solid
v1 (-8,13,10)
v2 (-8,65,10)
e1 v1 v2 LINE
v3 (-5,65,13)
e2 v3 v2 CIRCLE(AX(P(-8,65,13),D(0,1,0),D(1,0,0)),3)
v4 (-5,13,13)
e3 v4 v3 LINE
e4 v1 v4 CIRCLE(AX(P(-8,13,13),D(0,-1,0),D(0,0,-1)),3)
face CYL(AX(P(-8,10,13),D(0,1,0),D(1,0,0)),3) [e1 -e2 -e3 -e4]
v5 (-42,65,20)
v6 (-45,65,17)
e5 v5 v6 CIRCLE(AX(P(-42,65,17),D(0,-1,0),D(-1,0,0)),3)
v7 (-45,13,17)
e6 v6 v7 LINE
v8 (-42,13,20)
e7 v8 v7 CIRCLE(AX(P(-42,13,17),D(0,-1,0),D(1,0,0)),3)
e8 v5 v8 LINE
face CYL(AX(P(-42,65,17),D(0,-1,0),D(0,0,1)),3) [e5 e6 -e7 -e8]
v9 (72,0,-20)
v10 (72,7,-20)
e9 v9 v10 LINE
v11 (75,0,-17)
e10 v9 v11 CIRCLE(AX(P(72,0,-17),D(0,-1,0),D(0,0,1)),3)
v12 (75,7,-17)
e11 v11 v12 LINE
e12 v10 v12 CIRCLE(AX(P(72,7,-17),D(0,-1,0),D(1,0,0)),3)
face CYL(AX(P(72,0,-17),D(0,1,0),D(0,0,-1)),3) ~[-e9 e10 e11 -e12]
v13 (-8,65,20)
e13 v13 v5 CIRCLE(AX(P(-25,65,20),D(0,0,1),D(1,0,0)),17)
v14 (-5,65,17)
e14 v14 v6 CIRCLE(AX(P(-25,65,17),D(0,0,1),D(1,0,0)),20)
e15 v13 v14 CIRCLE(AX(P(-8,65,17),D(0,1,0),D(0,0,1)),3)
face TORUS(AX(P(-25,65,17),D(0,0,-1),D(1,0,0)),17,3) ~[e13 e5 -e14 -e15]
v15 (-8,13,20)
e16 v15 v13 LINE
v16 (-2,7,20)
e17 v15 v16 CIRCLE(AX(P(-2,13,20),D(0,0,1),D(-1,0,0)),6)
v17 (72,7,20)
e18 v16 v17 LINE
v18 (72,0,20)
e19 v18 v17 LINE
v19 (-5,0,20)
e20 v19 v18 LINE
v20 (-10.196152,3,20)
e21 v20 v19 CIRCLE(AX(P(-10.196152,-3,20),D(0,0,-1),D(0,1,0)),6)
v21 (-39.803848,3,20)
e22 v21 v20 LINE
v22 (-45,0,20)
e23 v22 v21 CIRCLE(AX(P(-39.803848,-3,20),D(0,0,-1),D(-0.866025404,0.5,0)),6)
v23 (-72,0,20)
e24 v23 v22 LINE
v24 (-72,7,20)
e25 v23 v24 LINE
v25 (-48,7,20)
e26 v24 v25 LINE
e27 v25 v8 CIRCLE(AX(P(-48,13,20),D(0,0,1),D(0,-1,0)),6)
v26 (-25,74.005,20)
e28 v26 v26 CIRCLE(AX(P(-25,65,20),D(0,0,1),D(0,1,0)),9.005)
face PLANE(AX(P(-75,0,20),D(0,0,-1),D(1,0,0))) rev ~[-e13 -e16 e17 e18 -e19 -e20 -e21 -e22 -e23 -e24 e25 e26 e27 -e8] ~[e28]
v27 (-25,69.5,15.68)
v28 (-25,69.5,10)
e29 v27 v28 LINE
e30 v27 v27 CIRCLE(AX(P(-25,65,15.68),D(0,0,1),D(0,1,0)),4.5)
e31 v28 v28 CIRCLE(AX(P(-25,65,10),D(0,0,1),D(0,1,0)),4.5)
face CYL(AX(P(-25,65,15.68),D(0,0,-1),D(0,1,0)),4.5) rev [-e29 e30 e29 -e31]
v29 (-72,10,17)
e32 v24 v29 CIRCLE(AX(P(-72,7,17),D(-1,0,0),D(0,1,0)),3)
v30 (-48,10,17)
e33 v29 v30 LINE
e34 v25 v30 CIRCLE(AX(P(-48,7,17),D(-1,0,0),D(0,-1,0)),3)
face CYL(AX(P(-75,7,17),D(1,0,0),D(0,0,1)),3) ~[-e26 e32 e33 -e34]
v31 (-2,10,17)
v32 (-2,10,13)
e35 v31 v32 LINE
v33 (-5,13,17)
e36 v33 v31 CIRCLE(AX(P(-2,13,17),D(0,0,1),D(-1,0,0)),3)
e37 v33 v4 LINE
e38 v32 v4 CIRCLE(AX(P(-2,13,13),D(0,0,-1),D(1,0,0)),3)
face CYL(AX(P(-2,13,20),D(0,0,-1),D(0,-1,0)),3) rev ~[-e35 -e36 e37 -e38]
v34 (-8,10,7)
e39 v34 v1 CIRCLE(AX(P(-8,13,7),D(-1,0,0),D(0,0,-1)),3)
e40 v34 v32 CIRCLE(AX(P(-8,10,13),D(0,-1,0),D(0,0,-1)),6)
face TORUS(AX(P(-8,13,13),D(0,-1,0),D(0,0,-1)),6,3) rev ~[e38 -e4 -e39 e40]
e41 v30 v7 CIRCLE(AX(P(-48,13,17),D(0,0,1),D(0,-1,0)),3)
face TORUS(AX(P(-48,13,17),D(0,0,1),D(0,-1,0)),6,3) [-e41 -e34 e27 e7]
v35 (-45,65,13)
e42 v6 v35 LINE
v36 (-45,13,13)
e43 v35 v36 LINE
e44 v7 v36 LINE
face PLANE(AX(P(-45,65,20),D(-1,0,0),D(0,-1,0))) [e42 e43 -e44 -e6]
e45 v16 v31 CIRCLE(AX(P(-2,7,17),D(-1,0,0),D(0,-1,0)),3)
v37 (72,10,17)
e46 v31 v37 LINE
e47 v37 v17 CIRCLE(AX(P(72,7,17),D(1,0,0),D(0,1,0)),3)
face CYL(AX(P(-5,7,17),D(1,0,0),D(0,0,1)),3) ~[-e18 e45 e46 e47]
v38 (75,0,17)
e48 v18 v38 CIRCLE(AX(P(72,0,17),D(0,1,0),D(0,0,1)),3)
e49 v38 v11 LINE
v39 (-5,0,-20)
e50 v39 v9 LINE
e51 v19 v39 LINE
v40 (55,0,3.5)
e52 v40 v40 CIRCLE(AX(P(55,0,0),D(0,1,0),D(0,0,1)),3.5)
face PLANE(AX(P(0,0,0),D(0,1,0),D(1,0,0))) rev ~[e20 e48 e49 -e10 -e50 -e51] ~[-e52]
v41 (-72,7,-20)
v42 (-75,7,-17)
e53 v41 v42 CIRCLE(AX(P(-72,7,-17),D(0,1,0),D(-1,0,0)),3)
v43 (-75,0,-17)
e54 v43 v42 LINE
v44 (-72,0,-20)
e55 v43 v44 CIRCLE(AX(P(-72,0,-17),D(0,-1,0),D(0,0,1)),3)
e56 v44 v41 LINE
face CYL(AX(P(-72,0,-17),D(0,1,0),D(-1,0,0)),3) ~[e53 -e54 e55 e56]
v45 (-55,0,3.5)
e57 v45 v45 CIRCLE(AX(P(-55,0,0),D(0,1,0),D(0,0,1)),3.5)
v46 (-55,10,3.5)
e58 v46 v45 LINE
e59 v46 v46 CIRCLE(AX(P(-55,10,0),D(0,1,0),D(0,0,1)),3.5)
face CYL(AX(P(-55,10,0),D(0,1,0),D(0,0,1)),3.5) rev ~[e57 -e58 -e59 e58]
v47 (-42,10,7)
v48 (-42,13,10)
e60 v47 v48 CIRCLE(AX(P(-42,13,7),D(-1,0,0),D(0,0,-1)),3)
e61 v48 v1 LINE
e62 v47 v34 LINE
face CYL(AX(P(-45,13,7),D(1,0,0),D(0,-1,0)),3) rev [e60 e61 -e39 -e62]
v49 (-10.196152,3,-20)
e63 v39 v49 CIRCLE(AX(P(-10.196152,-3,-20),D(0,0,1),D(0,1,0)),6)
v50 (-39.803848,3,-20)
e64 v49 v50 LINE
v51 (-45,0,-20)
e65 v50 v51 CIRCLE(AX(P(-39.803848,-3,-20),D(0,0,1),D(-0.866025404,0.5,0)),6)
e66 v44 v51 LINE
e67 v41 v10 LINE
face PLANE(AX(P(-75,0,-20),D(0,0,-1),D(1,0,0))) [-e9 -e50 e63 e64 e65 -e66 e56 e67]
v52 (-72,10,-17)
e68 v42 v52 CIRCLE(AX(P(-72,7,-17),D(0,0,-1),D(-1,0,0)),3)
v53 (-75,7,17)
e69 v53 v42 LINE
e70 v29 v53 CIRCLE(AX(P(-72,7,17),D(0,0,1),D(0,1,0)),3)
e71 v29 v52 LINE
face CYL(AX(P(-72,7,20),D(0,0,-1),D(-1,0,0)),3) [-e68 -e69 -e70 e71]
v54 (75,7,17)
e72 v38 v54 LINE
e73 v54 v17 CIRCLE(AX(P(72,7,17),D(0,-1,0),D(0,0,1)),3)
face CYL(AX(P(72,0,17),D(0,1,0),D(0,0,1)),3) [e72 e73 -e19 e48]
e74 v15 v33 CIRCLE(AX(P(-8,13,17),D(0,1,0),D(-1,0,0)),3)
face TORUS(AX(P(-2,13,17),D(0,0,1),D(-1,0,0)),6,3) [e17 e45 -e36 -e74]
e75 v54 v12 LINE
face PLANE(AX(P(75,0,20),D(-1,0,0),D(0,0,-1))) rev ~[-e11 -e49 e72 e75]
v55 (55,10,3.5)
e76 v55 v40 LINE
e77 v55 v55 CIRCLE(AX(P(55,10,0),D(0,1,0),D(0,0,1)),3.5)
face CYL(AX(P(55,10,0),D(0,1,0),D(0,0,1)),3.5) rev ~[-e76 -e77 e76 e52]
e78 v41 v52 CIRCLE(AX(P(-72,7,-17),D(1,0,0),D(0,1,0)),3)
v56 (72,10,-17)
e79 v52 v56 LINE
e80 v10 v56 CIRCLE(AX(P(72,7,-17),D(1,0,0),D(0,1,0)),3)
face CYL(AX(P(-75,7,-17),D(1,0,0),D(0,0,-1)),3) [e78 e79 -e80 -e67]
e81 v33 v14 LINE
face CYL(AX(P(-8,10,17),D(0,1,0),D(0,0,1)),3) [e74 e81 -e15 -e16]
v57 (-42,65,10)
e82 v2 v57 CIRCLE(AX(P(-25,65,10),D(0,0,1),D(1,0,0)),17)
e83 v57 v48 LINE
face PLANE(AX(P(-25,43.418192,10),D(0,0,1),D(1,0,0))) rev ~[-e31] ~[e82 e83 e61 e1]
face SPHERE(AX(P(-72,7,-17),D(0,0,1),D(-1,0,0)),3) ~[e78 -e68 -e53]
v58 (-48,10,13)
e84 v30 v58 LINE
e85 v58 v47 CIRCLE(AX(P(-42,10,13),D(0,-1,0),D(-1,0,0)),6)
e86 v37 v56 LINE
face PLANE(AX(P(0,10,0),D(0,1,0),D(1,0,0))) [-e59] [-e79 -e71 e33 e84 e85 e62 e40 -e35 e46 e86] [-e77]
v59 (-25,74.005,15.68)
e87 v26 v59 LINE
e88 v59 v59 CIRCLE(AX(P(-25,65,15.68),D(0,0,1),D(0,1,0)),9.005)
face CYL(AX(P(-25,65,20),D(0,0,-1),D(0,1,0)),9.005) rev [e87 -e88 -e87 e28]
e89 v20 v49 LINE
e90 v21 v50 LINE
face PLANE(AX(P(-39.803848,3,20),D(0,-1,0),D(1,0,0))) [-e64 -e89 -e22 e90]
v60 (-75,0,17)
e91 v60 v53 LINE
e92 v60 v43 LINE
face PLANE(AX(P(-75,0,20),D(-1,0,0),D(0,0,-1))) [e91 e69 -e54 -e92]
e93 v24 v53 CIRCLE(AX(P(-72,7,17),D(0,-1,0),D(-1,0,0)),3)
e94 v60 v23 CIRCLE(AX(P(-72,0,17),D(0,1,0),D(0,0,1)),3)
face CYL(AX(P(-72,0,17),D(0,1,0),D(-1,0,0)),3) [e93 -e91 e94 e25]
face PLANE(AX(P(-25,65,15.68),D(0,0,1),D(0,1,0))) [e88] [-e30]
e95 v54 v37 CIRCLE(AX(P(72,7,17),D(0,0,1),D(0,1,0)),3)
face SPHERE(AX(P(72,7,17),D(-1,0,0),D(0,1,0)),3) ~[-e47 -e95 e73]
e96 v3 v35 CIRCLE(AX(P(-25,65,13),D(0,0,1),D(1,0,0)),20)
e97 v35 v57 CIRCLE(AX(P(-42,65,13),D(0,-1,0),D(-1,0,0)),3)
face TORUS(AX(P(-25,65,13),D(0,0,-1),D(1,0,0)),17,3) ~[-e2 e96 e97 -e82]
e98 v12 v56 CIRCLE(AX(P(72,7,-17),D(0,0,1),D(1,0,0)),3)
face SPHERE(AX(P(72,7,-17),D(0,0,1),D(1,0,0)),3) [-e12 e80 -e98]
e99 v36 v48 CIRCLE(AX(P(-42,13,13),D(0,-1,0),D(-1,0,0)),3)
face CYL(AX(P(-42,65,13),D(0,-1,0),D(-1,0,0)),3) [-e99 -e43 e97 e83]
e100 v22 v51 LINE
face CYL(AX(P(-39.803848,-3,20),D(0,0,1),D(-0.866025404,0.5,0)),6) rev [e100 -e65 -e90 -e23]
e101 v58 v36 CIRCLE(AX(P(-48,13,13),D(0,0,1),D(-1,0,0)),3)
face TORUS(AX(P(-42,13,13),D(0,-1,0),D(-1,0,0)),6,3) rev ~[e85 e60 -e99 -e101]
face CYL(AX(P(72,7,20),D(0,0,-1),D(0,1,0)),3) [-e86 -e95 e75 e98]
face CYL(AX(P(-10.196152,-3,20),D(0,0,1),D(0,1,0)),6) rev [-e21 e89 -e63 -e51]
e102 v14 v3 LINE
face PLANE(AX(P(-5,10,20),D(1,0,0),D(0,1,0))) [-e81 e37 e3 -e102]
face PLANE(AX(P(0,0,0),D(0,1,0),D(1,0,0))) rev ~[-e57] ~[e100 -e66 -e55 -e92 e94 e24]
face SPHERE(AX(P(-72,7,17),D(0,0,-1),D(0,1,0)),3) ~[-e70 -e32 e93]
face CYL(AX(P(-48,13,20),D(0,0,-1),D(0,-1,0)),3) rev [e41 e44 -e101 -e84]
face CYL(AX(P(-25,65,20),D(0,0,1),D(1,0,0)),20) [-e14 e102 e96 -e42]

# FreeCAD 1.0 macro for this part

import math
import FreeCAD as App
import Part
import Sketcher

V = App.Vector


def edges_at(feature, points):
    """Names of the edges that pass closest to the given points."""
    edges = feature.Shape.Edges
    near = lambda p: min(range(len(edges)), key=lambda i: edges[i].distToShape(Part.Vertex(*p))[0])
    return sorted({f"Edge{near(p) + 1}" for p in points})

doc = App.newDocument("Part")
body = doc.addObject("PartDesign::Body", "Body")

# Sketch on XZ plane
sketch1 = body.newObject("Sketcher::SketchObject", "Sketch")
sketch1.AttachmentSupport = (doc.getObject("XZ_Plane"), [""])
sketch1.MapMode = "FlatFace"
sketch1.addGeometry([
    Part.LineSegment(V(-75, -20, 0), V(-75, 20, 0)),
    Part.LineSegment(V(-75, 20, 0), V(75, 20, 0)),
    Part.LineSegment(V(75, 20, 0), V(75, -20, 0)),
    Part.LineSegment(V(75, -20, 0), V(-75, -20, 0)),
], False)
sketch1.addConstraint([
    Sketcher.Constraint("Coincident", 0, 2, 1, 1),
    Sketcher.Constraint("Coincident", 1, 2, 2, 1),
    Sketcher.Constraint("Coincident", 2, 2, 3, 1),
    Sketcher.Constraint("Coincident", 3, 2, 0, 1),
    Sketcher.Constraint("Vertical", 0),
    Sketcher.Constraint("Horizontal", 1),
    Sketcher.Constraint("Vertical", 2),
    Sketcher.Constraint("Horizontal", 3),
    Sketcher.Constraint("Symmetric", 0, 2, 2, 2, -1, 1),
    Sketcher.Constraint("DistanceX", 1, 1, 1, 2, 150.0),
    Sketcher.Constraint("DistanceY", 0, 1, 0, 2, 40.0),
])
pad1 = body.newObject("PartDesign::Pad", "Pad")
pad1.Profile = sketch1
pad1.Length = 10
pad1.Reversed = True

# Sketch on XY plane
sketch2 = body.newObject("Sketcher::SketchObject", "Sketch001")
sketch2.AttachmentSupport = (doc.getObject("XY_Plane"), [""])
sketch2.MapMode = "FlatFace"
sketch2.AttachmentOffset = App.Placement(V(0, 0, 20), App.Rotation())
sketch2.addGeometry([
    Part.LineSegment(V(-45, 10, 0), V(-5, 10, 0)),
    Part.LineSegment(V(-5, 10, 0), V(-5, 65, 0)),
    Part.ArcOfCircle(Part.Circle(V(-25, 65, 0), V(0, 0, 1), 20), math.radians(0), math.radians(180)),
    Part.LineSegment(V(-45, 65, 0), V(-45, 10, 0)),
], False)
sketch2.addConstraint([
    Sketcher.Constraint("Coincident", 0, 2, 1, 1),
    Sketcher.Constraint("Tangent", 1, 2, 2, 1),
    Sketcher.Constraint("Tangent", 2, 2, 3, 1),
    Sketcher.Constraint("Coincident", 3, 2, 0, 1),
    Sketcher.Constraint("Horizontal", 0),
    Sketcher.Constraint("Vertical", 1),
    Sketcher.Constraint("Vertical", 3),
    Sketcher.Constraint("Radius", 2, 20.0),
    Sketcher.Constraint("DistanceY", 1, 1, 1, 2, 55.0),
    Sketcher.Constraint("DistanceX", 2, 3, -1, 1, 25.0),
    Sketcher.Constraint("DistanceY", -1, 1, 2, 3, 65.0),
])
pad2 = body.newObject("PartDesign::Pad", "Pad001")
pad2.Profile = sketch2
pad2.Length = 10
pad2.Reversed = True

# Sketch on YZ plane
sketch3 = body.newObject("Sketcher::SketchObject", "Sketch002")
sketch3.AttachmentSupport = (doc.getObject("YZ_Plane"), [""])
sketch3.MapMode = "FlatFace"
sketch3.AttachmentOffset = App.Placement(V(0, 0, -25), App.Rotation())
sketch3.addGeometry([
    Part.LineSegment(V(65, 20, 0), V(65, 10, 0)),  # 0
    Part.LineSegment(V(65, 10, 0), V(69.5, 10, 0)),  # 1
    Part.LineSegment(V(69.5, 10, 0), V(69.5, 15.7, 0)),  # 2
    Part.LineSegment(V(69.5, 15.7, 0), V(74, 15.7, 0)),  # 3
    Part.LineSegment(V(74, 15.7, 0), V(74, 20, 0)),  # 4
    Part.LineSegment(V(74, 20, 0), V(65, 20, 0)),  # 5
], False)
sketch3.addGeometry(Part.LineSegment(V(65, 10, 0), V(65, 20, 0)), True)  # axis
sketch3.addConstraint([
    Sketcher.Constraint("Coincident", 0, 2, 1, 1),
    Sketcher.Constraint("Coincident", 1, 2, 2, 1),
    Sketcher.Constraint("Coincident", 2, 2, 3, 1),
    Sketcher.Constraint("Coincident", 3, 2, 4, 1),
    Sketcher.Constraint("Coincident", 4, 2, 5, 1),
    Sketcher.Constraint("Coincident", 5, 2, 0, 1),
    Sketcher.Constraint("Vertical", 0),
    Sketcher.Constraint("Horizontal", 1),
    Sketcher.Constraint("Vertical", 2),
    Sketcher.Constraint("Horizontal", 3),
    Sketcher.Constraint("Vertical", 4),
    Sketcher.Constraint("Horizontal", 5),
    Sketcher.Constraint("Vertical", 6),
    Sketcher.Constraint("Coincident", 6, 1, 0, 2),
    Sketcher.Constraint("Horizontal", 4, 2, 6, 2),
    Sketcher.Constraint("DistanceY", 0, 2, 0, 1, 10.0),
    Sketcher.Constraint("DistanceX", 1, 1, 1, 2, 4.5),
    Sketcher.Constraint("DistanceX", -1, 1, 0, 2, 65.0),
    Sketcher.Constraint("DistanceY", -1, 1, 0, 2, 10.0),
    Sketcher.Constraint("DistanceY", 2, 1, 2, 2, 5.68),
    Sketcher.Constraint("DistanceX", 3, 1, 3, 2, 4.505),
])
groove = body.newObject("PartDesign::Groove", "Groove")
groove.Profile = sketch3
groove.ReferenceAxis = (sketch3, ["Axis0"])
groove.Angle = 360

# Sketch on XY plane
sketch4 = body.newObject("Sketcher::SketchObject", "Sketch003")
sketch4.AttachmentSupport = (doc.getObject("XY_Plane"), [""])
sketch4.MapMode = "FlatFace"
sketch4.AttachmentOffset = App.Placement(V(0, 0, 20), App.Rotation())
sketch4.addGeometry([
    Part.LineSegment(V(-10, 3, 0), V(-40, 3, 0)),
    Part.ArcOfCircle(Part.Circle(V(-40, -3, 0), V(0, 0, 1), 6), math.radians(90), math.radians(150)),
    Part.LineSegment(V(-45, 0, 0), V(-5, 0, 0)),
    Part.ArcOfCircle(Part.Circle(V(-10, -3, 0), V(0, 0, 1), 6), math.radians(30), math.radians(90)),
], False)
sketch4.addConstraint([
    Sketcher.Constraint("Tangent", 0, 2, 1, 1),
    Sketcher.Constraint("Coincident", 1, 2, 2, 1),
    Sketcher.Constraint("Coincident", 2, 2, 3, 1),
    Sketcher.Constraint("Tangent", 3, 2, 0, 1),
    Sketcher.Constraint("Horizontal", 0),
    Sketcher.Constraint("Horizontal", 2),
    Sketcher.Constraint("Equal", 1, 3),
    Sketcher.Constraint("PointOnObject", 1, 2, -1),
    Sketcher.Constraint("Radius", 1, 6.0),
    Sketcher.Constraint("DistanceX", 2, 1, 2, 2, 40.0),
    Sketcher.Constraint("DistanceY", 1, 3, -1, 1, 3.0),
    Sketcher.Constraint("DistanceX", 1, 2, -1, 1, 45.0),
])
pocket1 = body.newObject("PartDesign::Pocket", "Pocket")
pocket1.Profile = sketch4
pocket1.Type = "ThroughAll"

# Sketch on XZ plane
sketch5 = body.newObject("Sketcher::SketchObject", "Sketch004")
sketch5.AttachmentSupport = (doc.getObject("XZ_Plane"), [""])
sketch5.MapMode = "FlatFace"
sketch5.AttachmentOffset = App.Placement(V(0, 0, -10), App.Rotation())
sketch5.addGeometry([
    Part.Circle(V(-55, 0, 0), V(0, 0, 1), 3.5),
    Part.Circle(V(55, 0, 0), V(0, 0, 1), 3.5),
], False)
sketch5.addConstraint([
    Sketcher.Constraint("Equal", 0, 1),
    Sketcher.Constraint("Symmetric", 0, 3, 1, 3, -1, 1),
    Sketcher.Constraint("PointOnObject", 0, 3, -1),
    Sketcher.Constraint("Diameter", 0, 7.0),
    Sketcher.Constraint("DistanceX", 0, 3, -1, 1, 55.0),
])
pocket2 = body.newObject("PartDesign::Pocket", "Pocket001")
pocket2.Profile = sketch5
pocket2.Type = "ThroughAll"
pocket2.Reversed = True
doc.recompute()

fillet = body.newObject("PartDesign::Fillet", "Fillet")
fillet.Base = (pocket2, edges_at(pocket2, [
    (-75, 10, 0),
    (35, 10, 20),
    (-45, 37.5, 10),
    (-45, 10, 15),
    (-25, 85, 10),
    (-5, 37.5, 10),
    (-60, 10, 20),
    (-25, 10, 10),
    (-5, 10, 15),
    (-45, 37.5, 20),
    (-5, 37.5, 20),
    (-25, 85, 20),
    (75, 10, 0),
    (75, 5, 20),
    (-75, 5, 20),
    (-75, 5, -20),
    (75, 5, -20),
    (0, 10, -20),
]))
fillet.Radius = 3

doc.recompute()
